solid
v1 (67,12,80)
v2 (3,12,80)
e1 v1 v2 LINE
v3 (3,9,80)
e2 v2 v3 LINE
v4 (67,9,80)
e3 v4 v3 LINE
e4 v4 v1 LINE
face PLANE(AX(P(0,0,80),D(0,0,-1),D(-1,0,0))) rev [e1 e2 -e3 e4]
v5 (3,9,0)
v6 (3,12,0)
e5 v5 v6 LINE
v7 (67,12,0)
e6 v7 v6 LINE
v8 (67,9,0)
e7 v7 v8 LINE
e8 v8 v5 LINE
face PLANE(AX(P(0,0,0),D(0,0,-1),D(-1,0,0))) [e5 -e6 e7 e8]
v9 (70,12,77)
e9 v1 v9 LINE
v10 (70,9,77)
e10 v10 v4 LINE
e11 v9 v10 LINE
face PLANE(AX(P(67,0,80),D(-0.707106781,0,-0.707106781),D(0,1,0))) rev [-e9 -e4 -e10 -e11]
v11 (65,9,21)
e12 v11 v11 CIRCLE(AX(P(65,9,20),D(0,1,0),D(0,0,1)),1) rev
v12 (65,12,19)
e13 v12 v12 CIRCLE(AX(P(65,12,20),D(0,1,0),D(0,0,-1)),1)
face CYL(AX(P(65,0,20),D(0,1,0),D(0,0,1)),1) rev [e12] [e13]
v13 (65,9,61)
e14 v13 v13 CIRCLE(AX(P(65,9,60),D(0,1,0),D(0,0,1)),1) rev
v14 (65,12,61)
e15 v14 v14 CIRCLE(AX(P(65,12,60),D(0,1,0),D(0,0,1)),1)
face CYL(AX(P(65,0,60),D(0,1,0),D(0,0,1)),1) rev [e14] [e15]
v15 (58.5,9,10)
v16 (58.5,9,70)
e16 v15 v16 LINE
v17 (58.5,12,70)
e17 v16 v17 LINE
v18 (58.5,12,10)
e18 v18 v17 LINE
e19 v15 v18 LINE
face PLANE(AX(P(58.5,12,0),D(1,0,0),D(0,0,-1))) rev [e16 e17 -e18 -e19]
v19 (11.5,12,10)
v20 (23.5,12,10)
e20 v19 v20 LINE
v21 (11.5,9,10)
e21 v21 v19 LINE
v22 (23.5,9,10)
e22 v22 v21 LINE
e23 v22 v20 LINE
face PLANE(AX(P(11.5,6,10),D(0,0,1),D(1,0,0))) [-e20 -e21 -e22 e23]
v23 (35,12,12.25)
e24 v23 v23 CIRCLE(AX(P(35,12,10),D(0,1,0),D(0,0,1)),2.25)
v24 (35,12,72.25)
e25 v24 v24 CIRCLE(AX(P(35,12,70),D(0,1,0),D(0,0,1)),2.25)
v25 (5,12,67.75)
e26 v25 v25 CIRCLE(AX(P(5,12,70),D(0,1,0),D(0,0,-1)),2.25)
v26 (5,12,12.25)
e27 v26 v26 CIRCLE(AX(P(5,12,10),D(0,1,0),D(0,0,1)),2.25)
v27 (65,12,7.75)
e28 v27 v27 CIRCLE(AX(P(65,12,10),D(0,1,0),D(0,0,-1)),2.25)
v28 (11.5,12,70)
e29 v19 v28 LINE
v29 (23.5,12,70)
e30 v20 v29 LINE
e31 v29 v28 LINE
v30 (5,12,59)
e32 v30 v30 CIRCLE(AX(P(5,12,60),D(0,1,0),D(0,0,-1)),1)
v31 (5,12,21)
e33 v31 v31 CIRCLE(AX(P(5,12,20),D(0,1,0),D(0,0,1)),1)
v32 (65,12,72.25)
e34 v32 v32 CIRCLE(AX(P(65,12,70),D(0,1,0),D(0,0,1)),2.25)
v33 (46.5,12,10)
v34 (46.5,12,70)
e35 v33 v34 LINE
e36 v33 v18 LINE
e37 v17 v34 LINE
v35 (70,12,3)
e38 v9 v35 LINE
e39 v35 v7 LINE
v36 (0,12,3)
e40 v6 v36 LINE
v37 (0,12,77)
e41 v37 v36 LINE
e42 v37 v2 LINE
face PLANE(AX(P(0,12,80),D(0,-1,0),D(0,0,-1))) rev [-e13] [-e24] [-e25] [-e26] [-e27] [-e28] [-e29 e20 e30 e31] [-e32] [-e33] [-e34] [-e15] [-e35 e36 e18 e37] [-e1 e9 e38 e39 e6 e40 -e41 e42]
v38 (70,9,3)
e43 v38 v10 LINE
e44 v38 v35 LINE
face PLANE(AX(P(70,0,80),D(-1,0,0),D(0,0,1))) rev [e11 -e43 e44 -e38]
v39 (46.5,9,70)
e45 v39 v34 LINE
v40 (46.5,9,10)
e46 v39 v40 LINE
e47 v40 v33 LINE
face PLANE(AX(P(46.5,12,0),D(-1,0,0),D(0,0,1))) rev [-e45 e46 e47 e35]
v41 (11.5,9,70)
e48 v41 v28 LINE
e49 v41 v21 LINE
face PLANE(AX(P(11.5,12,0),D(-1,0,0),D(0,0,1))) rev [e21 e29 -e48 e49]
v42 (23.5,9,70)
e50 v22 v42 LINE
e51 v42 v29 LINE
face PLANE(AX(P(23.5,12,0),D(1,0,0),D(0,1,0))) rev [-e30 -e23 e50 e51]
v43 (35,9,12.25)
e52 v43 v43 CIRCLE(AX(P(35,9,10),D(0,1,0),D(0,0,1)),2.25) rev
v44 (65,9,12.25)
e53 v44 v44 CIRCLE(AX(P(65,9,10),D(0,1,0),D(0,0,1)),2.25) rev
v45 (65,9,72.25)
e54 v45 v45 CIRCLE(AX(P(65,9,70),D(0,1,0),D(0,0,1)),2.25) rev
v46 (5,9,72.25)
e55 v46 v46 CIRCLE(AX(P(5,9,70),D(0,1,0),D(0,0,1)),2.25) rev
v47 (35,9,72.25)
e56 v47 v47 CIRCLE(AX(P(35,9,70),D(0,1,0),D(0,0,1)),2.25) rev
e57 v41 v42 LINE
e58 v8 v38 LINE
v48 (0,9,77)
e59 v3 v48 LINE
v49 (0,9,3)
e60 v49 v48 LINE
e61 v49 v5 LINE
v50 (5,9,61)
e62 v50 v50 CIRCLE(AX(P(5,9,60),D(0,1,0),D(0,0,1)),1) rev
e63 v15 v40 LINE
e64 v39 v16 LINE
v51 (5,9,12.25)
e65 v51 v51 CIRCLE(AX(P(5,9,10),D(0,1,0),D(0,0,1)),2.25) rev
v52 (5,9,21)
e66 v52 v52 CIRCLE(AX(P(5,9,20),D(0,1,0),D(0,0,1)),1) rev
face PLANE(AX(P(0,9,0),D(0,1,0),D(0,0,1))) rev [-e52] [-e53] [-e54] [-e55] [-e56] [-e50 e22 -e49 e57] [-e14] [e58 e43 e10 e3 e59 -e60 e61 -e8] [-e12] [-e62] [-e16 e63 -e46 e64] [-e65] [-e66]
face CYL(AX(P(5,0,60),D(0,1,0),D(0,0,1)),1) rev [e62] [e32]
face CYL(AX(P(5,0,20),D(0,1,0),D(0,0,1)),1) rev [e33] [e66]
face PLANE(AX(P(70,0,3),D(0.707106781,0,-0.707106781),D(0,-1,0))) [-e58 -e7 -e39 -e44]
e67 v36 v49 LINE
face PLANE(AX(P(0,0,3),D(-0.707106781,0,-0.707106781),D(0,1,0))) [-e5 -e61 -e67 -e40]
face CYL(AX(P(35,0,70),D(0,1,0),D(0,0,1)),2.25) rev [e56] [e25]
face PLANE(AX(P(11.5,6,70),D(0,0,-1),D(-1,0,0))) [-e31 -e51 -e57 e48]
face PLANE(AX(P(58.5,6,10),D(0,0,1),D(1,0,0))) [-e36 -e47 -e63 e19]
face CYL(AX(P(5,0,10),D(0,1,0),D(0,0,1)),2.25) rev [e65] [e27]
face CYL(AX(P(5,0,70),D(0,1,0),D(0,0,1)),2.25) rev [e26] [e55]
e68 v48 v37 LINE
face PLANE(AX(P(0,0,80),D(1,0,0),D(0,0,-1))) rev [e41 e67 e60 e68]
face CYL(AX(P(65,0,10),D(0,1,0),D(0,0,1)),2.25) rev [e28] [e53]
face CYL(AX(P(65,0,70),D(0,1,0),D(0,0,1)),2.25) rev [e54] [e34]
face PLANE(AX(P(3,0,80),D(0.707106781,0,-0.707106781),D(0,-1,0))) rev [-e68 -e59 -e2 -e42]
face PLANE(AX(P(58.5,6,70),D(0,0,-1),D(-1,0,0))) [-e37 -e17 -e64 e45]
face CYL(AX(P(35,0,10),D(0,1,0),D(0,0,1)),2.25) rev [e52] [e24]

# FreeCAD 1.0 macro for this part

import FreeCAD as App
import Part
import Sketcher
from FreeCAD import Vector


def edges_at(feature, points):
    """Names of the edges that pass closest to the given points."""
    edges = feature.Shape.Edges
    near = lambda p: min(range(len(edges)), key=lambda i: edges[i].distToShape(Part.Vertex(*p))[0])
    return sorted({f"Edge{near(p) + 1}" for p in points})

doc = App.newDocument("Part")
params = doc.addObject("Spreadsheet::Sheet", "Params")
for row, (alias, value) in enumerate([
    ("sketch1_width", "70 mm"),
    ("sketch1_height", "12 mm"),
    ("pad1_length", "80 mm"),
    ("sketch2_width", "12 mm"),
    ("sketch2_height", "6 mm"),
    ("sketch3_diameter", "4.5 mm"),
    ("sketch4_width", "12 mm"),
    ("sketch4_height", "10 mm"),
    ("pad2_length", "6 mm"),
    ("chamfer_size", "3 mm"),
    ("sketch5_diameter", "2 mm"),
    ("pocket3_length", "12 mm"),
    ("sketch6_width", "70 mm"),
    ("sketch6_height", "9 mm"),
    ("pocket4_length", "80 mm"),
], start=1):
    params.set(f"A{row}", alias)
    params.set(f"B{row}", "=" + value)
    params.setAlias(f"B{row}", alias)

body = doc.addObject("PartDesign::Body", "Body")

# Sketch on XY plane
sketch1 = body.newObject("Sketcher::SketchObject", "Sketch")
sketch1.AttachmentSupport = (doc.getObject("XY_Plane"), [""])
sketch1.MapMode = "FlatFace"
sketch1.addGeometry([
    Part.LineSegment(Vector(0, 12, 0), Vector(0, 0, 0)),
    Part.LineSegment(Vector(0, 0, 0), Vector(70, 0, 0)),
    Part.LineSegment(Vector(70, 0, 0), Vector(70, 12, 0)),
    Part.LineSegment(Vector(70, 12, 0), Vector(0, 12, 0)),
], False)
sketch1.addConstraint([
    Sketcher.Constraint("Coincident", 0, 2, 1, 1),
    Sketcher.Constraint("Coincident", 1, 2, 2, 1),
    Sketcher.Constraint("Coincident", 2, 2, 3, 1),
    Sketcher.Constraint("Coincident", 3, 2, 0, 1),
    Sketcher.Constraint("Vertical", 0),
    Sketcher.Constraint("Horizontal", 1),
    Sketcher.Constraint("Vertical", 2),
    Sketcher.Constraint("Horizontal", 3),
    Sketcher.Constraint("Coincident", 0, 2, -1, 1),
    Sketcher.Constraint("DistanceX", 1, 1, 1, 2, 70.0),
    Sketcher.Constraint("DistanceY", 0, 2, 0, 1, 12.0),
])
sketch1.setExpression("Constraints[9]", "Params.sketch1_width")
sketch1.setExpression("Constraints[10]", "Params.sketch1_height")
pad1 = body.newObject("PartDesign::Pad", "Pad")
pad1.Profile = sketch1
pad1.setExpression("Length", "Params.pad1_length")

# Sketch on XY plane
sketch2 = body.newObject("Sketcher::SketchObject", "Sketch001")
sketch2.AttachmentSupport = (doc.getObject("XY_Plane"), [""])
sketch2.MapMode = "FlatFace"
sketch2.AttachmentOffset = App.Placement(Vector(0, 0, 80), App.Rotation())
sketch2.addGeometry([
    Part.LineSegment(Vector(46, 12, 0), Vector(46, 6, 0)),  # 0
    Part.LineSegment(Vector(46, 6, 0), Vector(58, 6, 0)),  # 1
    Part.LineSegment(Vector(58, 6, 0), Vector(58, 12, 0)),  # 2
    Part.LineSegment(Vector(58, 12, 0), Vector(46, 12, 0)),  # 3
    Part.LineSegment(Vector(12, 12, 0), Vector(12, 6, 0)),  # 4
    Part.LineSegment(Vector(12, 6, 0), Vector(24, 6, 0)),  # 5
    Part.LineSegment(Vector(24, 6, 0), Vector(24, 12, 0)),  # 6
    Part.LineSegment(Vector(24, 12, 0), Vector(12, 12, 0)),  # 7
], False)
sketch2.addConstraint([
    Sketcher.Constraint("Coincident", 0, 2, 1, 1),
    Sketcher.Constraint("Coincident", 1, 2, 2, 1),
    Sketcher.Constraint("Coincident", 2, 2, 3, 1),
    Sketcher.Constraint("Coincident", 3, 2, 0, 1),
    Sketcher.Constraint("Coincident", 4, 2, 5, 1),
    Sketcher.Constraint("Coincident", 5, 2, 6, 1),
    Sketcher.Constraint("Coincident", 6, 2, 7, 1),
    Sketcher.Constraint("Coincident", 7, 2, 4, 1),
    Sketcher.Constraint("Vertical", 0),
    Sketcher.Constraint("Horizontal", 1),
    Sketcher.Constraint("Vertical", 2),
    Sketcher.Constraint("Horizontal", 3),
    Sketcher.Constraint("Vertical", 4),
    Sketcher.Constraint("Horizontal", 5),
    Sketcher.Constraint("Vertical", 6),
    Sketcher.Constraint("Horizontal", 7),
    Sketcher.Constraint("Horizontal", 1, 2, 4, 2),
    Sketcher.Constraint("Horizontal", 3, 2, 6, 2),
    Sketcher.Constraint("Equal", 3, 5),
    Sketcher.Constraint("DistanceX", 1, 1, 1, 2, 12.0),
    Sketcher.Constraint("DistanceY", 0, 2, 0, 1, 6.0),
    Sketcher.Constraint("DistanceY", -1, 1, 0, 2, 6.0),
    Sketcher.Constraint("DistanceX", 4, 2, 0, 2, 35.0),
    Sketcher.Constraint("DistanceX", -1, 1, 0, 2, 46.5),
])
sketch2.setExpression("Constraints[19]", "Params.sketch2_width")
sketch2.setExpression("Constraints[20]", "Params.sketch2_height")
pocket1 = body.newObject("PartDesign::Pocket", "Pocket")
pocket1.Profile = sketch2
pocket1.Type = "ThroughAll"

# Sketch on XZ plane
sketch3 = body.newObject("Sketcher::SketchObject", "Sketch002")
sketch3.AttachmentSupport = (doc.getObject("XZ_Plane"), [""])
sketch3.MapMode = "FlatFace"
sketch3.AttachmentOffset = App.Placement(Vector(0, 0, -12), App.Rotation())
sketch3.addGeometry([
    Part.Circle(Vector(5, 10, 0), Vector(0, 0, 1), 2.2),  # 0
    Part.Circle(Vector(65, 70, 0), Vector(0, 0, 1), 2.2),  # 1
    Part.Circle(Vector(65, 10, 0), Vector(0, 0, 1), 2.2),  # 2
    Part.Circle(Vector(5, 70, 0), Vector(0, 0, 1), 2.2),  # 3
    Part.Circle(Vector(35, 10, 0), Vector(0, 0, 1), 2.2),  # 4
    Part.Circle(Vector(35, 70, 0), Vector(0, 0, 1), 2.2),  # 5
], False)
sketch3.addConstraint([
    Sketcher.Constraint("Equal", 0, 1),
    Sketcher.Constraint("Equal", 1, 2),
    Sketcher.Constraint("Equal", 2, 3),
    Sketcher.Constraint("Equal", 3, 4),
    Sketcher.Constraint("Equal", 4, 5),
    Sketcher.Constraint("Horizontal", 0, 3, 2, 3),
    Sketcher.Constraint("Horizontal", 1, 3, 3, 3),
    Sketcher.Constraint("Horizontal", 2, 3, 4, 3),
    Sketcher.Constraint("Horizontal", 3, 3, 5, 3),
    Sketcher.Constraint("Vertical", 1, 3, 2, 3),
    Sketcher.Constraint("Vertical", 0, 3, 3, 3),
    Sketcher.Constraint("Vertical", 4, 3, 5, 3),
    Sketcher.Constraint("Diameter", 0, 4.5),
    Sketcher.Constraint("DistanceX", -1, 1, 0, 3, 5.0),
    Sketcher.Constraint("DistanceY", -1, 1, 0, 3, 10.0),
    Sketcher.Constraint("DistanceX", -1, 1, 1, 3, 65.0),
    Sketcher.Constraint("DistanceY", -1, 1, 1, 3, 70.0),
    Sketcher.Constraint("DistanceX", -1, 1, 4, 3, 35.0),
])
sketch3.setExpression("Constraints[12]", "Params.sketch3_diameter")
pocket2 = body.newObject("PartDesign::Pocket", "Pocket001")
pocket2.Profile = sketch3
pocket2.Type = "ThroughAll"
pocket2.Reversed = True

# Sketch on XZ plane
sketch4 = body.newObject("Sketcher::SketchObject", "Sketch003")
sketch4.AttachmentSupport = (doc.getObject("XZ_Plane"), [""])
sketch4.MapMode = "FlatFace"
sketch4.AttachmentOffset = App.Placement(Vector(0, 0, -12), App.Rotation())
sketch4.addGeometry([
    Part.LineSegment(Vector(12, 70, 0), Vector(12, 80, 0)),  # 0
    Part.LineSegment(Vector(12, 80, 0), Vector(24, 80, 0)),  # 1
    Part.LineSegment(Vector(24, 80, 0), Vector(24, 70, 0)),  # 2
    Part.LineSegment(Vector(24, 70, 0), Vector(12, 70, 0)),  # 3
    Part.LineSegment(Vector(46, 70, 0), Vector(46, 80, 0)),  # 4
    Part.LineSegment(Vector(46, 80, 0), Vector(58, 80, 0)),  # 5
    Part.LineSegment(Vector(58, 80, 0), Vector(58, 70, 0)),  # 6
    Part.LineSegment(Vector(58, 70, 0), Vector(46, 70, 0)),  # 7
    Part.LineSegment(Vector(46, 0, 0), Vector(46, 10, 0)),  # 8
    Part.LineSegment(Vector(46, 10, 0), Vector(58, 10, 0)),  # 9
    Part.LineSegment(Vector(58, 10, 0), Vector(58, 0, 0)),  # 10
    Part.LineSegment(Vector(58, 0, 0), Vector(46, 0, 0)),  # 11
    Part.LineSegment(Vector(12, 0, 0), Vector(12, 10, 0)),  # 12
    Part.LineSegment(Vector(12, 10, 0), Vector(24, 10, 0)),  # 13
    Part.LineSegment(Vector(24, 10, 0), Vector(24, 0, 0)),  # 14
    Part.LineSegment(Vector(24, 0, 0), Vector(12, 0, 0)),  # 15
], False)
sketch4.addConstraint([
    Sketcher.Constraint("Coincident", 0, 2, 1, 1),
    Sketcher.Constraint("Coincident", 1, 2, 2, 1),
    Sketcher.Constraint("Coincident", 2, 2, 3, 1),
    Sketcher.Constraint("Coincident", 3, 2, 0, 1),
    Sketcher.Constraint("Coincident", 4, 2, 5, 1),
    Sketcher.Constraint("Coincident", 5, 2, 6, 1),
    Sketcher.Constraint("Coincident", 6, 2, 7, 1),
    Sketcher.Constraint("Coincident", 7, 2, 4, 1),
    Sketcher.Constraint("Coincident", 8, 2, 9, 1),
    Sketcher.Constraint("Coincident", 9, 2, 10, 1),
    Sketcher.Constraint("Coincident", 10, 2, 11, 1),
    Sketcher.Constraint("Coincident", 11, 2, 8, 1),
    Sketcher.Constraint("Coincident", 12, 2, 13, 1),
    Sketcher.Constraint("Coincident", 13, 2, 14, 1),
    Sketcher.Constraint("Coincident", 14, 2, 15, 1),
    Sketcher.Constraint("Coincident", 15, 2, 12, 1),
    Sketcher.Constraint("Vertical", 0),
    Sketcher.Constraint("Horizontal", 1),
    Sketcher.Constraint("Vertical", 2),
    Sketcher.Constraint("Horizontal", 3),
    Sketcher.Constraint("Vertical", 4),
    Sketcher.Constraint("Horizontal", 5),
    Sketcher.Constraint("Vertical", 6),
    Sketcher.Constraint("Horizontal", 7),
    Sketcher.Constraint("Vertical", 8),
    Sketcher.Constraint("Horizontal", 9),
    Sketcher.Constraint("Vertical", 10),
    Sketcher.Constraint("Horizontal", 11),
    Sketcher.Constraint("Vertical", 12),
    Sketcher.Constraint("Horizontal", 13),
    Sketcher.Constraint("Vertical", 14),
    Sketcher.Constraint("Horizontal", 15),
    Sketcher.Constraint("PointOnObject", 10, 2, -1),
    Sketcher.Constraint("PointOnObject", 14, 2, -1),
    Sketcher.Constraint("Horizontal", 1, 2, 4, 2),
    Sketcher.Constraint("Horizontal", 3, 2, 6, 2),
    Sketcher.Constraint("Horizontal", 9, 2, 12, 2),
    Sketcher.Constraint("Vertical", 7, 2, 8, 2),
    Sketcher.Constraint("Vertical", 6, 2, 9, 2),
    Sketcher.Constraint("Vertical", 3, 2, 12, 2),
    Sketcher.Constraint("Vertical", 2, 2, 13, 2),
    Sketcher.Constraint("Equal", 3, 5),
    Sketcher.Constraint("Equal", 6, 8),
    Sketcher.Constraint("DistanceX", 1, 1, 1, 2, 12.0),
    Sketcher.Constraint("DistanceY", 0, 1, 0, 2, 10.0),
    Sketcher.Constraint("DistanceY", -1, 1, 0, 2, 80.0),
    Sketcher.Constraint("DistanceX", 1, 2, 4, 2, 23.0),
    Sketcher.Constraint("DistanceX", -1, 1, 0, 2, 11.5),
])
sketch4.setExpression("Constraints[43]", "Params.sketch4_width")
sketch4.setExpression("Constraints[44]", "Params.sketch4_height")
pad2 = body.newObject("PartDesign::Pad", "Pad001")
pad2.Profile = sketch4
pad2.setExpression("Length", "Params.pad2_length")
doc.recompute()

chamfer = body.newObject("PartDesign::Chamfer", "Chamfer")
chamfer.Base = (pad2, edges_at(pad2, [
    (70, 6, 80),
    (0, 6, 80),
    (70, 6, 0),
    (0, 6, 0),
]))
chamfer.setExpression("Size", "Params.chamfer_size")

# Sketch on XZ plane
sketch5 = body.newObject("Sketcher::SketchObject", "Sketch004")
sketch5.AttachmentSupport = (doc.getObject("XZ_Plane"), [""])
sketch5.MapMode = "FlatFace"
sketch5.AttachmentOffset = App.Placement(Vector(0, 0, -12), App.Rotation())
sketch5.addGeometry([
    Part.Circle(Vector(5, 20, 0), Vector(0, 0, 1), 1),
    Part.Circle(Vector(5, 60, 0), Vector(0, 0, 1), 1),
    Part.Circle(Vector(65, 60, 0), Vector(0, 0, 1), 1),
    Part.Circle(Vector(65, 20, 0), Vector(0, 0, 1), 1),
], False)
sketch5.addConstraint([
    Sketcher.Constraint("Equal", 0, 1),
    Sketcher.Constraint("Equal", 1, 2),
    Sketcher.Constraint("Equal", 2, 3),
    Sketcher.Constraint("Horizontal", 1, 3, 2, 3),
    Sketcher.Constraint("Horizontal", 0, 3, 3, 3),
    Sketcher.Constraint("Vertical", 0, 3, 1, 3),
    Sketcher.Constraint("Vertical", 2, 3, 3, 3),
    Sketcher.Constraint("Diameter", 0, 2.0),
    Sketcher.Constraint("DistanceX", -1, 1, 0, 3, 5.0),
    Sketcher.Constraint("DistanceY", -1, 1, 0, 3, 20.0),
    Sketcher.Constraint("DistanceY", -1, 1, 1, 3, 60.0),
    Sketcher.Constraint("DistanceX", -1, 1, 2, 3, 65.0),
])
sketch5.setExpression("Constraints[7]", "Params.sketch5_diameter")
pocket3 = body.newObject("PartDesign::Pocket", "Pocket002")
pocket3.Profile = sketch5
pocket3.setExpression("Length", "Params.pocket3_length")
pocket3.Reversed = True

# Sketch on XY plane
sketch6 = body.newObject("Sketcher::SketchObject", "Sketch005")
sketch6.AttachmentSupport = (doc.getObject("XY_Plane"), [""])
sketch6.MapMode = "FlatFace"
sketch6.addGeometry([
    Part.LineSegment(Vector(0, 9, 0), Vector(0, 0, 0)),
    Part.LineSegment(Vector(0, 0, 0), Vector(70, 0, 0)),
    Part.LineSegment(Vector(70, 0, 0), Vector(70, 9, 0)),
    Part.LineSegment(Vector(70, 9, 0), Vector(0, 9, 0)),
], False)
sketch6.addConstraint([
    Sketcher.Constraint("Coincident", 0, 2, 1, 1),
    Sketcher.Constraint("Coincident", 1, 2, 2, 1),
    Sketcher.Constraint("Coincident", 2, 2, 3, 1),
    Sketcher.Constraint("Coincident", 3, 2, 0, 1),
    Sketcher.Constraint("Vertical", 0),
    Sketcher.Constraint("Horizontal", 1),
    Sketcher.Constraint("Vertical", 2),
    Sketcher.Constraint("Horizontal", 3),
    Sketcher.Constraint("Coincident", 0, 2, -1, 1),
    Sketcher.Constraint("DistanceX", 1, 1, 1, 2, 70.0),
    Sketcher.Constraint("DistanceY", 0, 2, 0, 1, 9.0),
])
sketch6.setExpression("Constraints[9]", "Params.sketch6_width")
sketch6.setExpression("Constraints[10]", "Params.sketch6_height")
pocket4 = body.newObject("PartDesign::Pocket", "Pocket003")
pocket4.Profile = sketch6
pocket4.setExpression("Length", "Params.pocket4_length")
pocket4.Reversed = True

doc.recompute()
